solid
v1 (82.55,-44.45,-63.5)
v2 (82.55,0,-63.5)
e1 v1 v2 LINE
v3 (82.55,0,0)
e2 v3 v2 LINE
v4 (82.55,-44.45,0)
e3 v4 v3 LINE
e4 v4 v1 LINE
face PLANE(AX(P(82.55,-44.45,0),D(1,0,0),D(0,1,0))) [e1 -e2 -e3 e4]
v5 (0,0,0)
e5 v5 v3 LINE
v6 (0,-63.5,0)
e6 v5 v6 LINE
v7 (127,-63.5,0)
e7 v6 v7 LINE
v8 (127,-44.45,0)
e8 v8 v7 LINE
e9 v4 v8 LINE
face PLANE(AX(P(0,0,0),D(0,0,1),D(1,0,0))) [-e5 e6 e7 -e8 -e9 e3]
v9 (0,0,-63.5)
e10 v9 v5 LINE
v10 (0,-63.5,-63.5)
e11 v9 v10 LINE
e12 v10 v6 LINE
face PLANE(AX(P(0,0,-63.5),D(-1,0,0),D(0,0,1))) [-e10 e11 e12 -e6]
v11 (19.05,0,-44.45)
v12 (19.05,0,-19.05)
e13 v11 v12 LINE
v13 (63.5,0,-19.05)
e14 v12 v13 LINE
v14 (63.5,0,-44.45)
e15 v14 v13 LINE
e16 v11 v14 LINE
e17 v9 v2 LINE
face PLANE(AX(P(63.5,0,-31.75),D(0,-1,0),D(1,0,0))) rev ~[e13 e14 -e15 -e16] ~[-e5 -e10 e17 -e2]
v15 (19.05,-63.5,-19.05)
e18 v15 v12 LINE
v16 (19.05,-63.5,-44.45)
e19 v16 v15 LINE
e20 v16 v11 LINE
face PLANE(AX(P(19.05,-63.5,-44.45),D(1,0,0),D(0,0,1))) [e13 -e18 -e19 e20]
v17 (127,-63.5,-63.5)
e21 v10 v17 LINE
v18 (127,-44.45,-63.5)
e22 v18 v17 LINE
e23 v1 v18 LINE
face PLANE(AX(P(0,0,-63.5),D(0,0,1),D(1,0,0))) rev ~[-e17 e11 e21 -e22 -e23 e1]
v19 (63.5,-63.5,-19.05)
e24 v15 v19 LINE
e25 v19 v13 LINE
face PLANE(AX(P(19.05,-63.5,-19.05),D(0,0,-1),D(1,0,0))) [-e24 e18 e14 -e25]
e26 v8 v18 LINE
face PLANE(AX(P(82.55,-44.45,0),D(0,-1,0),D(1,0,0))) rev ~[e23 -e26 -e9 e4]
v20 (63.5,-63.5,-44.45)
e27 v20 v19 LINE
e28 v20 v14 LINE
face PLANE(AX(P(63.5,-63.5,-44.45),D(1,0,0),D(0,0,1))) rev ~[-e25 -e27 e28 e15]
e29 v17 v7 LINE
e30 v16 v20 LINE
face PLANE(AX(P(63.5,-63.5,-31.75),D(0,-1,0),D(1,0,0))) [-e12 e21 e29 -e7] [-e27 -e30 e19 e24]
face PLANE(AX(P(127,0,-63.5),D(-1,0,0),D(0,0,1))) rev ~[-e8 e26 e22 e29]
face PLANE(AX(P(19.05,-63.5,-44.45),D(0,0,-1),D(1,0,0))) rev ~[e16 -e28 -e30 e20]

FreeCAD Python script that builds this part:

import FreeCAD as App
import Part
import Sketcher

V = App.Vector
Q = App.Units.Quantity


def add_polygon(sketch, points):
    """Adds a closed chain of lines whose ends are joined by coincident constraints."""
    first, n = sketch.GeometryCount, len(points)
    for a, b in zip(points, points[1:] + points[:1]):
        sketch.addGeometry(Part.LineSegment(App.Vector(*a, 0), App.Vector(*b, 0)), False)
    for i in range(n):
        sketch.addConstraint(Sketcher.Constraint("Coincident", first + i, 2, first + (i + 1) % n, 1))

doc = App.newDocument("Part")
body = doc.addObject("PartDesign::Body", "Body")

# Sketch on XZ plane
sketch1 = body.newObject("Sketcher::SketchObject", "Sketch")
sketch1.AttachmentSupport = (doc.getObject("XZ_Plane"), [""])
sketch1.MapMode = "FlatFace"
add_polygon(sketch1, [(0, 0), (0, -64), (127, -64), (127, 0)])  # lines 0-3
sketch1.addConstraint(Sketcher.Constraint("Vertical", 0))
sketch1.addConstraint(Sketcher.Constraint("Horizontal", 1))
sketch1.addConstraint(Sketcher.Constraint("Vertical", 2))
sketch1.addConstraint(Sketcher.Constraint("Horizontal", 3))
sketch1.addConstraint(Sketcher.Constraint("Coincident", 3, 2, -1, 1))
sketch1.addConstraint(Sketcher.Constraint("DistanceX", 1, 1, 1, 2, Q("5 in")))
sketch1.addConstraint(Sketcher.Constraint("DistanceY", 0, 2, 0, 1, Q("2.5 in")))
pad1 = body.newObject("PartDesign::Pad", "Pad")
pad1.Profile = sketch1
pad1.Length = Q("2.5 in")

# Sketch on XZ plane
sketch2 = body.newObject("Sketcher::SketchObject", "Sketch001")
sketch2.AttachmentSupport = (doc.getObject("XZ_Plane"), [""])
sketch2.MapMode = "FlatFace"
sketch2.AttachmentOffset = App.Placement(V(0, 0, 2.5 * 25.4), App.Rotation())
add_polygon(sketch2, [(19, -19), (19, -44), (64, -44), (64, -19)])  # lines 0-3
sketch2.addConstraint(Sketcher.Constraint("Vertical", 0))
sketch2.addConstraint(Sketcher.Constraint("Horizontal", 1))
sketch2.addConstraint(Sketcher.Constraint("Vertical", 2))
sketch2.addConstraint(Sketcher.Constraint("Horizontal", 3))
sketch2.addConstraint(Sketcher.Constraint("DistanceY", 0, 2, 0, 1, Q("1 in")))
sketch2.addConstraint(Sketcher.Constraint("DistanceX", 1, 1, 1, 2, Q("1.75 in")))
sketch2.addConstraint(Sketcher.Constraint("DistanceX", -1, 1, 1, 2, Q("2.5 in")))
sketch2.addConstraint(Sketcher.Constraint("DistanceY", 0, 2, -1, 1, Q("1.75 in")))
pocket1 = body.newObject("PartDesign::Pocket", "Pocket")
pocket1.Profile = sketch2
pocket1.Type = "ThroughAll"

# Sketch on XY plane
sketch3 = body.newObject("Sketcher::SketchObject", "Sketch002")
sketch3.AttachmentSupport = (doc.getObject("XY_Plane"), [""])
sketch3.MapMode = "FlatFace"
add_polygon(sketch3, [(83, 0), (83, -44), (127, -44), (127, 0)])  # lines 0-3
sketch3.addConstraint(Sketcher.Constraint("Vertical", 0))
sketch3.addConstraint(Sketcher.Constraint("Horizontal", 1))
sketch3.addConstraint(Sketcher.Constraint("Vertical", 2))
sketch3.addConstraint(Sketcher.Constraint("Horizontal", 3))
sketch3.addConstraint(Sketcher.Constraint("PointOnObject", 2, 2, -1))
sketch3.addConstraint(Sketcher.Constraint("Equal", 3, 0))
sketch3.addConstraint(Sketcher.Constraint("DistanceX", -1, 1, 1, 2, Q("5 in")))
sketch3.addConstraint(Sketcher.Constraint("DistanceX", 1, 1, 1, 2, Q("1.75 in")))
pocket2 = body.newObject("PartDesign::Pocket", "Pocket001")
pocket2.Profile = sketch3
pocket2.Type = "ThroughAll"

doc.recompute()
